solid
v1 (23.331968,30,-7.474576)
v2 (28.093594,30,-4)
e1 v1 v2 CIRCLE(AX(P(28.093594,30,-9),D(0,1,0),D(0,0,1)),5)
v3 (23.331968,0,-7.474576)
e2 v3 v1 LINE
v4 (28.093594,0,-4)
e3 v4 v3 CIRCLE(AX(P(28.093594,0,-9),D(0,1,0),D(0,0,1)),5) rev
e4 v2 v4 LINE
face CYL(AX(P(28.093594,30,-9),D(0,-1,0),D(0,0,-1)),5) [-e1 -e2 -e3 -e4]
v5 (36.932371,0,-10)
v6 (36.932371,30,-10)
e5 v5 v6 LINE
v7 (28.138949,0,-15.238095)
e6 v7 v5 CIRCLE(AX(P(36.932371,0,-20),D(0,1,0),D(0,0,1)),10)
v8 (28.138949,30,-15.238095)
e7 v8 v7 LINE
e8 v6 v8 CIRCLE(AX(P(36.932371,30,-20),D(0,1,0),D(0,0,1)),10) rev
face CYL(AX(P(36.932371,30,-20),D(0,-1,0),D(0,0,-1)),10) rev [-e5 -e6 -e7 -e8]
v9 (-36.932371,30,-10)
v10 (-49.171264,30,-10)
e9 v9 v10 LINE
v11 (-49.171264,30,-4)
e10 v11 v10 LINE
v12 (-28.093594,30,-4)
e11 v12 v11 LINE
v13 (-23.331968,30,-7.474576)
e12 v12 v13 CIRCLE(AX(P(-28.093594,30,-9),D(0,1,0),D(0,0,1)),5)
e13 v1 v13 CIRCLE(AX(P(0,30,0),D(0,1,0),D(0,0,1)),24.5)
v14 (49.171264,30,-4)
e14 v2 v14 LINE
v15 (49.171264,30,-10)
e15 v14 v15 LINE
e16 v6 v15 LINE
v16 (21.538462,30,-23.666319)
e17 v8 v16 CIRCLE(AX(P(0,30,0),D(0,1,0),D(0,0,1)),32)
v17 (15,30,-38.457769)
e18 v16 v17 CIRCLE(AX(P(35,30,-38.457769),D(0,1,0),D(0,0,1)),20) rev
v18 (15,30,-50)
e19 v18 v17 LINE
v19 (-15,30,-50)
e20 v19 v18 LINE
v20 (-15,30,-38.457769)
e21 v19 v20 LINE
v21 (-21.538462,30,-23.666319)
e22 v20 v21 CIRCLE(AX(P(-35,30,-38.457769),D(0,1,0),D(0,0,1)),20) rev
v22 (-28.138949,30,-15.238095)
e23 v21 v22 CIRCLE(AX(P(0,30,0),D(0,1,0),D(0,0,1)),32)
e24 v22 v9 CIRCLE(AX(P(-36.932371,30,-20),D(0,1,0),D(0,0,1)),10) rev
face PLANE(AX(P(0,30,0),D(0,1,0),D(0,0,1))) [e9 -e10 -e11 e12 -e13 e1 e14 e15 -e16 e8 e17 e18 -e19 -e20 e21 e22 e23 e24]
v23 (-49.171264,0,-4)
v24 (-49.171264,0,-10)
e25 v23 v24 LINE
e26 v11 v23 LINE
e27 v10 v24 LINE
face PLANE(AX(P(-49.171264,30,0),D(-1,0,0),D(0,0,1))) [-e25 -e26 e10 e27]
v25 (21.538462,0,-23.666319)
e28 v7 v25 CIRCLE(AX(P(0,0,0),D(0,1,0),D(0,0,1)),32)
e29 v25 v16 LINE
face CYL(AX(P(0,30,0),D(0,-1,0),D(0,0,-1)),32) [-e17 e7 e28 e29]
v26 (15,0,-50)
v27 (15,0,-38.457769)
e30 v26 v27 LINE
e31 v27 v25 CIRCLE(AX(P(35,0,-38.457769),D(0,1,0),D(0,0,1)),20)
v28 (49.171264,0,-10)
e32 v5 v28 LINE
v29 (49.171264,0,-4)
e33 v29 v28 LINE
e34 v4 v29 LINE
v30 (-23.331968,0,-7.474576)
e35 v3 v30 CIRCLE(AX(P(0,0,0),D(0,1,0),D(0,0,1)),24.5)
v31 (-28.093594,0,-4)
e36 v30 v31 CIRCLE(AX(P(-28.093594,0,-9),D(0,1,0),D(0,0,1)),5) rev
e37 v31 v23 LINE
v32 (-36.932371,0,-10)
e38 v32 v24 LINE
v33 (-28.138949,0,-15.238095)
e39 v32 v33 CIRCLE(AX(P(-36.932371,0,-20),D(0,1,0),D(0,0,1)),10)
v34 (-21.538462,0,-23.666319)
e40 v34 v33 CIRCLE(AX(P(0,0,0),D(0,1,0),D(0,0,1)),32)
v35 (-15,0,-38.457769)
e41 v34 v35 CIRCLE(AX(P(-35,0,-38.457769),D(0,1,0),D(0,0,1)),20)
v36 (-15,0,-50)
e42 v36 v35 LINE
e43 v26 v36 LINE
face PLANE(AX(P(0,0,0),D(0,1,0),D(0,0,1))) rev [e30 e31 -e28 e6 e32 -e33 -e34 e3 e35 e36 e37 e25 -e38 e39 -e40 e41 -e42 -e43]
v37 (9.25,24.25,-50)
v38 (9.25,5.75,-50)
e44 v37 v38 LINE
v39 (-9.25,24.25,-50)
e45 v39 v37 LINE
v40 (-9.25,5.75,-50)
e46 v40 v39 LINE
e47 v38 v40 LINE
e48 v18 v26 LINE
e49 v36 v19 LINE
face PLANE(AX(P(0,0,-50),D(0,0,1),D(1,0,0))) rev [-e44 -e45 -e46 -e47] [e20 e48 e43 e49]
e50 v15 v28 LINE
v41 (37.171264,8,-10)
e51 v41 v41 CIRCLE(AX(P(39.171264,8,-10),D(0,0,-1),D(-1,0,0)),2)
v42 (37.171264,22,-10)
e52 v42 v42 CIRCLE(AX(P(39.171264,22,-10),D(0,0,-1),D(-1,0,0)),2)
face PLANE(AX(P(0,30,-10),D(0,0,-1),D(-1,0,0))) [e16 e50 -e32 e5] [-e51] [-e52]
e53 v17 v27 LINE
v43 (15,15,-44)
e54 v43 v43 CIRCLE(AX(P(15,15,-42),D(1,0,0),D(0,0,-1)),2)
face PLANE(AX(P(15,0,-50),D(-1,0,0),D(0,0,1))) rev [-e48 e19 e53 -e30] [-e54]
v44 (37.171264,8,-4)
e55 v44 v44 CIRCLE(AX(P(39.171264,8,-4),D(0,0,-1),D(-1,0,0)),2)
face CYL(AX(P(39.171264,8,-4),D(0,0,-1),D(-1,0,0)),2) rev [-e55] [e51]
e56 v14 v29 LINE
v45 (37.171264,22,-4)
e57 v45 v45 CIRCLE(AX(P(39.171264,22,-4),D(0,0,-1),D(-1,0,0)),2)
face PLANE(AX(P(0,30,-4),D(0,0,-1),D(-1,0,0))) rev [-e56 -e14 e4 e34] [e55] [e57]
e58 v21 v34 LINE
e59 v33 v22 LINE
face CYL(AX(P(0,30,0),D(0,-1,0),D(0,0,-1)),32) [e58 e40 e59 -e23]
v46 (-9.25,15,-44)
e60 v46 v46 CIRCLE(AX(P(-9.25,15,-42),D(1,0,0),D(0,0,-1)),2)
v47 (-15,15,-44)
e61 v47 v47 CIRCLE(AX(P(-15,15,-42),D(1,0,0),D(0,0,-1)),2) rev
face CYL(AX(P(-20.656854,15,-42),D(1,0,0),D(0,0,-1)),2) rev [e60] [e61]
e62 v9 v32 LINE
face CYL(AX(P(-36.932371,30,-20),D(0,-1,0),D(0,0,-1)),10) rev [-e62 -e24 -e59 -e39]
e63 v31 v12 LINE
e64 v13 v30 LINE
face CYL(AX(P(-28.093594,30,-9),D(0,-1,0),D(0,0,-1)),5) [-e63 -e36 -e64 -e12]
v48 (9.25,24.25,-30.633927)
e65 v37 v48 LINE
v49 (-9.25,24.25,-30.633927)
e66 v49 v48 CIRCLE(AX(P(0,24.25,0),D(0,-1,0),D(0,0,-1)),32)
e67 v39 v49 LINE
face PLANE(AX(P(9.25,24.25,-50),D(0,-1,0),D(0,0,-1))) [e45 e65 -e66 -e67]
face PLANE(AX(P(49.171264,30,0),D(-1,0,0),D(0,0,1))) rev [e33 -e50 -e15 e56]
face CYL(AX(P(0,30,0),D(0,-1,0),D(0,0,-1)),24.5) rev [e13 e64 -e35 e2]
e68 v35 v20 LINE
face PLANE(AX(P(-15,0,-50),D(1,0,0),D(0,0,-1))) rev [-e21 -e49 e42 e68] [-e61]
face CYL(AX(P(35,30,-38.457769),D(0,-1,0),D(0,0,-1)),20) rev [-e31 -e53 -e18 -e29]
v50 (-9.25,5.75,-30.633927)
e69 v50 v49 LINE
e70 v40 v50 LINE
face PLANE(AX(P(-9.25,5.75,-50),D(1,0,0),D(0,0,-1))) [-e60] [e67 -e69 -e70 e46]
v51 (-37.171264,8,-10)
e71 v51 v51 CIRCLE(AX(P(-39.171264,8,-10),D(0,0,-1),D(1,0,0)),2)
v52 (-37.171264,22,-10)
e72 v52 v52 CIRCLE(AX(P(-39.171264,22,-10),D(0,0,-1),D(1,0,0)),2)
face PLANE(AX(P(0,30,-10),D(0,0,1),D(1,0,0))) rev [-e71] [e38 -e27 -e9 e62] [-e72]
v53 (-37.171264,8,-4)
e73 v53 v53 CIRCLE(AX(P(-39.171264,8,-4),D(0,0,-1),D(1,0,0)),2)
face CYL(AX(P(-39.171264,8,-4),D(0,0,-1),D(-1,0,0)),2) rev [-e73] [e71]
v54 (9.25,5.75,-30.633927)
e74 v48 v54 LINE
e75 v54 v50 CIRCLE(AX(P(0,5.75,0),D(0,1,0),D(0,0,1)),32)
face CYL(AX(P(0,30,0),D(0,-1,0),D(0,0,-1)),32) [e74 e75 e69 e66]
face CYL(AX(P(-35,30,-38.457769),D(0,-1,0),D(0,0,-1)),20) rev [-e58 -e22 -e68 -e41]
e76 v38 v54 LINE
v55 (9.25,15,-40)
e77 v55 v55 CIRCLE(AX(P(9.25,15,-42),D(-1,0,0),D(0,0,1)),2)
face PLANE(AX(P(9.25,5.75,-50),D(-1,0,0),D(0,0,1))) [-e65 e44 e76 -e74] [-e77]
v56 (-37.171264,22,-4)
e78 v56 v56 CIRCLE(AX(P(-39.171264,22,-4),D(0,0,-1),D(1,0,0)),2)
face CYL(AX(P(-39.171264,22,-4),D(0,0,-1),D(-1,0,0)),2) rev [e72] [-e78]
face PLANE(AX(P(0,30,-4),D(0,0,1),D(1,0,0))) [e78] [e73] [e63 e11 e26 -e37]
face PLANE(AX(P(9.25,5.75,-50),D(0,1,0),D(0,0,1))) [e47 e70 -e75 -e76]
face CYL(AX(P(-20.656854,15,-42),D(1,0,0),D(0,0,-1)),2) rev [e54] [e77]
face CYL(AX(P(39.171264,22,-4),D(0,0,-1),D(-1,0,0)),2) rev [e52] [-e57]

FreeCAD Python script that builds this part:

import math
import FreeCAD as App
import Part
import Sketcher

V = App.Vector


def edges_at(feature, points):
    """Names of the edges that pass closest to the given points."""
    edges = feature.Shape.Edges
    near = lambda p: min(range(len(edges)), key=lambda i: edges[i].distToShape(Part.Vertex(*p))[0])
    return sorted({f"Edge{near(p) + 1}" for p in points})

doc = App.newDocument("Part")
body = doc.addObject("PartDesign::Body", "Body")

sketch1 = body.newObject("Sketcher::SketchObject", "Sketch")
sketch1.AttachmentSupport = (doc.getObject("XZ_Plane"), [""])
sketch1.MapMode = "FlatFace"
sketch1.addGeometry(Part.ArcOfCircle(Part.Circle(V(0, 0, 0), V(0, 0, 1), 25), math.radians(-171), math.radians(-9)), False)
sketch1.addGeometry(Part.LineSegment(V(24, -4, 0), V(49, -4, 0)), False)
sketch1.addGeometry(Part.LineSegment(V(49, -4, 0), V(49, -10, 0)), False)
sketch1.addGeometry(Part.LineSegment(V(49, -10, 0), V(30, -10, 0)), False)
sketch1.addGeometry(Part.ArcOfCircle(Part.Circle(V(0, 0, 0), V(0, 0, 1), 32), math.radians(-162), math.radians(-18)), False)
sketch1.addGeometry(Part.LineSegment(V(-30, -10, 0), V(-49, -10, 0)), False)
sketch1.addGeometry(Part.LineSegment(V(-49, -10, 0), V(-49, -4, 0)), False)
sketch1.addGeometry(Part.LineSegment(V(-49, -4, 0), V(-24, -4, 0)), False)
sketch1.addConstraint(Sketcher.Constraint("Coincident", 0, 2, 1, 1))
sketch1.addConstraint(Sketcher.Constraint("Coincident", 1, 2, 2, 1))
sketch1.addConstraint(Sketcher.Constraint("Coincident", 2, 2, 3, 1))
sketch1.addConstraint(Sketcher.Constraint("Coincident", 3, 2, 4, 2))
sketch1.addConstraint(Sketcher.Constraint("Coincident", 4, 1, 5, 1))
sketch1.addConstraint(Sketcher.Constraint("Coincident", 5, 2, 6, 1))
sketch1.addConstraint(Sketcher.Constraint("Coincident", 6, 2, 7, 1))
sketch1.addConstraint(Sketcher.Constraint("Coincident", 7, 2, 0, 1))
sketch1.addConstraint(Sketcher.Constraint("Horizontal", 1))
sketch1.addConstraint(Sketcher.Constraint("Vertical", 2))
sketch1.addConstraint(Sketcher.Constraint("Horizontal", 3))
sketch1.addConstraint(Sketcher.Constraint("Horizontal", 5))
sketch1.addConstraint(Sketcher.Constraint("Vertical", 6))
sketch1.addConstraint(Sketcher.Constraint("Horizontal", 7))
sketch1.addConstraint(Sketcher.Constraint("Coincident", 0, 3, -1, 1))
sketch1.addConstraint(Sketcher.Constraint("Coincident", 4, 3, -1, 1))
sketch1.addConstraint(Sketcher.Constraint("Symmetric", 2, 2, 5, 2, -2))
sketch1.addConstraint(Sketcher.Constraint("Horizontal", 1, 2, 6, 2))
sketch1.addConstraint(Sketcher.Constraint("Radius", 4, 32.0))
sketch1.addConstraint(Sketcher.Constraint("Radius", 0, 24.5))
sketch1.addConstraint(Sketcher.Constraint("DistanceX", 1, 1, 1, 2, 25.0))
sketch1.addConstraint(Sketcher.Constraint("DistanceY", 2, 2, 2, 1, 6.0))
sketch1.addConstraint(Sketcher.Constraint("DistanceY", 0, 2, -1, 1, 4.0))
pad1 = body.newObject("PartDesign::Pad", "Pad")
pad1.Profile = sketch1
pad1.Length = 30
pad1.Reversed = True

sketch2 = body.newObject("Sketcher::SketchObject", "Sketch001")
sketch2.AttachmentSupport = (doc.getObject("XY_Plane"), [""])
sketch2.MapMode = "FlatFace"
sketch2.AttachmentOffset = App.Placement(V(0, 0, -10), App.Rotation())
sketch2.addGeometry(Part.Circle(V(39.2, 22, 0), V(0, 0, 1), 2), False)
sketch2.addGeometry(Part.Circle(V(39.2, 8, 0), V(0, 0, 1), 2), False)
sketch2.addGeometry(Part.Circle(V(-39.2, 8, 0), V(0, 0, 1), 2), False)
sketch2.addGeometry(Part.Circle(V(-39.2, 22, 0), V(0, 0, 1), 2), False)
sketch2.addConstraint(Sketcher.Constraint("Equal", 0, 1))
sketch2.addConstraint(Sketcher.Constraint("Equal", 1, 2))
sketch2.addConstraint(Sketcher.Constraint("Equal", 2, 3))
sketch2.addConstraint(Sketcher.Constraint("Symmetric", 1, 3, 2, 3, -2))
sketch2.addConstraint(Sketcher.Constraint("Symmetric", 0, 3, 3, 3, -2))
sketch2.addConstraint(Sketcher.Constraint("Vertical", 0, 3, 1, 3))
sketch2.addConstraint(Sketcher.Constraint("Diameter", 0, 4.0))
sketch2.addConstraint(Sketcher.Constraint("DistanceY", -1, 1, 0, 3, 22.0))
sketch2.addConstraint(Sketcher.Constraint("DistanceY", -1, 1, 1, 3, 8.0))
sketch2.addConstraint(Sketcher.Constraint("DistanceX", -1, 1, 0, 3, 39.171264))
pocket1 = body.newObject("PartDesign::Pocket", "Pocket")
pocket1.Profile = sketch2
pocket1.Type = "ThroughAll"
pocket1.Reversed = True
doc.recompute()

fillet = body.newObject("PartDesign::Fillet", "Fillet")
fillet.Base = (pocket1, edges_at(pocket1, [(-30.397, 15, -10), (30.397, 15, -10)]))
fillet.Radius = 10
doc.recompute()

fillet2 = body.newObject("PartDesign::Fillet", "Fillet001")
fillet2.Base = (fillet, edges_at(fillet, [(-24.171, 15, -4), (24.171, 15, -4)]))
fillet2.Radius = 5

sketch3 = body.newObject("Sketcher::SketchObject", "Sketch002")
sketch3.AttachmentSupport = (doc.getObject("XY_Plane"), [""])
sketch3.MapMode = "FlatFace"
sketch3.AttachmentOffset = App.Placement(V(0, 0, -25), App.Rotation())
sketch3.addGeometry(Part.LineSegment(V(15, 30, 0), V(15, 0, 0)), False)
sketch3.addGeometry(Part.LineSegment(V(15, 0, 0), V(-15, 0, 0)), False)
sketch3.addGeometry(Part.LineSegment(V(-15, 0, 0), V(-15, 30, 0)), False)
sketch3.addGeometry(Part.LineSegment(V(-15, 30, 0), V(15, 30, 0)), False)
sketch3.addGeometry(Part.LineSegment(V(-9, 6, 0), V(9, 6, 0)), False)
sketch3.addGeometry(Part.LineSegment(V(9, 6, 0), V(9, 24, 0)), False)
sketch3.addGeometry(Part.LineSegment(V(9, 24, 0), V(-9, 24, 0)), False)
sketch3.addGeometry(Part.LineSegment(V(-9, 24, 0), V(-9, 6, 0)), False)
sketch3.addConstraint(Sketcher.Constraint("Coincident", 0, 2, 1, 1))
sketch3.addConstraint(Sketcher.Constraint("Coincident", 1, 2, 2, 1))
sketch3.addConstraint(Sketcher.Constraint("Coincident", 2, 2, 3, 1))
sketch3.addConstraint(Sketcher.Constraint("Coincident", 3, 2, 0, 1))
sketch3.addConstraint(Sketcher.Constraint("Coincident", 4, 2, 5, 1))
sketch3.addConstraint(Sketcher.Constraint("Coincident", 5, 2, 6, 1))
sketch3.addConstraint(Sketcher.Constraint("Coincident", 6, 2, 7, 1))
sketch3.addConstraint(Sketcher.Constraint("Coincident", 7, 2, 4, 1))
sketch3.addConstraint(Sketcher.Constraint("Vertical", 0))
sketch3.addConstraint(Sketcher.Constraint("Horizontal", 1))
sketch3.addConstraint(Sketcher.Constraint("Vertical", 2))
sketch3.addConstraint(Sketcher.Constraint("Horizontal", 3))
sketch3.addConstraint(Sketcher.Constraint("Horizontal", 4))
sketch3.addConstraint(Sketcher.Constraint("Vertical", 5))
sketch3.addConstraint(Sketcher.Constraint("Horizontal", 6))
sketch3.addConstraint(Sketcher.Constraint("Vertical", 7))
sketch3.addConstraint(Sketcher.Constraint("Symmetric", 0, 2, 1, 2, -1, 1))
sketch3.addConstraint(Sketcher.Constraint("Equal", 3, 0))
sketch3.addConstraint(Sketcher.Constraint("Equal", 6, 5))
sketch3.addConstraint(Sketcher.Constraint("DistanceX", 1, 2, 1, 1, 30.0))
sketch3.addConstraint(Sketcher.Constraint("DistanceX", 4, 1, 4, 2, 18.5))
sketch3.addConstraint(Sketcher.Constraint("DistanceX", -1, 1, 4, 2, 9.25))
sketch3.addConstraint(Sketcher.Constraint("DistanceY", -1, 1, 4, 2, 5.75))
pad2 = body.newObject("PartDesign::Pad", "Pad001")
pad2.Profile = sketch3
pad2.Length = 25
pad2.Reversed = True
doc.recompute()

fillet3 = body.newObject("PartDesign::Fillet", "Fillet002")
fillet3.Base = (pad2, edges_at(pad2, [(-15, 15, -28.267), (15, 15, -28.267)]))
fillet3.Radius = 20

sketch4 = body.newObject("Sketcher::SketchObject", "Sketch003")
sketch4.AttachmentSupport = (doc.getObject("YZ_Plane"), [""])
sketch4.MapMode = "FlatFace"
sketch4.AttachmentOffset = App.Placement(V(0, 0, 15), App.Rotation())
sketch4.addGeometry(Part.Circle(V(15, -42, 0), V(0, 0, 1), 2), False)
sketch4.addConstraint(Sketcher.Constraint("Diameter", 0, 4.0))
sketch4.addConstraint(Sketcher.Constraint("DistanceX", -1, 1, 0, 3, 15.0))
sketch4.addConstraint(Sketcher.Constraint("DistanceY", 0, 3, -1, 1, 42.0))
pocket2 = body.newObject("PartDesign::Pocket", "Pocket001")
pocket2.Profile = sketch4
pocket2.Length = 30

doc.recompute()
